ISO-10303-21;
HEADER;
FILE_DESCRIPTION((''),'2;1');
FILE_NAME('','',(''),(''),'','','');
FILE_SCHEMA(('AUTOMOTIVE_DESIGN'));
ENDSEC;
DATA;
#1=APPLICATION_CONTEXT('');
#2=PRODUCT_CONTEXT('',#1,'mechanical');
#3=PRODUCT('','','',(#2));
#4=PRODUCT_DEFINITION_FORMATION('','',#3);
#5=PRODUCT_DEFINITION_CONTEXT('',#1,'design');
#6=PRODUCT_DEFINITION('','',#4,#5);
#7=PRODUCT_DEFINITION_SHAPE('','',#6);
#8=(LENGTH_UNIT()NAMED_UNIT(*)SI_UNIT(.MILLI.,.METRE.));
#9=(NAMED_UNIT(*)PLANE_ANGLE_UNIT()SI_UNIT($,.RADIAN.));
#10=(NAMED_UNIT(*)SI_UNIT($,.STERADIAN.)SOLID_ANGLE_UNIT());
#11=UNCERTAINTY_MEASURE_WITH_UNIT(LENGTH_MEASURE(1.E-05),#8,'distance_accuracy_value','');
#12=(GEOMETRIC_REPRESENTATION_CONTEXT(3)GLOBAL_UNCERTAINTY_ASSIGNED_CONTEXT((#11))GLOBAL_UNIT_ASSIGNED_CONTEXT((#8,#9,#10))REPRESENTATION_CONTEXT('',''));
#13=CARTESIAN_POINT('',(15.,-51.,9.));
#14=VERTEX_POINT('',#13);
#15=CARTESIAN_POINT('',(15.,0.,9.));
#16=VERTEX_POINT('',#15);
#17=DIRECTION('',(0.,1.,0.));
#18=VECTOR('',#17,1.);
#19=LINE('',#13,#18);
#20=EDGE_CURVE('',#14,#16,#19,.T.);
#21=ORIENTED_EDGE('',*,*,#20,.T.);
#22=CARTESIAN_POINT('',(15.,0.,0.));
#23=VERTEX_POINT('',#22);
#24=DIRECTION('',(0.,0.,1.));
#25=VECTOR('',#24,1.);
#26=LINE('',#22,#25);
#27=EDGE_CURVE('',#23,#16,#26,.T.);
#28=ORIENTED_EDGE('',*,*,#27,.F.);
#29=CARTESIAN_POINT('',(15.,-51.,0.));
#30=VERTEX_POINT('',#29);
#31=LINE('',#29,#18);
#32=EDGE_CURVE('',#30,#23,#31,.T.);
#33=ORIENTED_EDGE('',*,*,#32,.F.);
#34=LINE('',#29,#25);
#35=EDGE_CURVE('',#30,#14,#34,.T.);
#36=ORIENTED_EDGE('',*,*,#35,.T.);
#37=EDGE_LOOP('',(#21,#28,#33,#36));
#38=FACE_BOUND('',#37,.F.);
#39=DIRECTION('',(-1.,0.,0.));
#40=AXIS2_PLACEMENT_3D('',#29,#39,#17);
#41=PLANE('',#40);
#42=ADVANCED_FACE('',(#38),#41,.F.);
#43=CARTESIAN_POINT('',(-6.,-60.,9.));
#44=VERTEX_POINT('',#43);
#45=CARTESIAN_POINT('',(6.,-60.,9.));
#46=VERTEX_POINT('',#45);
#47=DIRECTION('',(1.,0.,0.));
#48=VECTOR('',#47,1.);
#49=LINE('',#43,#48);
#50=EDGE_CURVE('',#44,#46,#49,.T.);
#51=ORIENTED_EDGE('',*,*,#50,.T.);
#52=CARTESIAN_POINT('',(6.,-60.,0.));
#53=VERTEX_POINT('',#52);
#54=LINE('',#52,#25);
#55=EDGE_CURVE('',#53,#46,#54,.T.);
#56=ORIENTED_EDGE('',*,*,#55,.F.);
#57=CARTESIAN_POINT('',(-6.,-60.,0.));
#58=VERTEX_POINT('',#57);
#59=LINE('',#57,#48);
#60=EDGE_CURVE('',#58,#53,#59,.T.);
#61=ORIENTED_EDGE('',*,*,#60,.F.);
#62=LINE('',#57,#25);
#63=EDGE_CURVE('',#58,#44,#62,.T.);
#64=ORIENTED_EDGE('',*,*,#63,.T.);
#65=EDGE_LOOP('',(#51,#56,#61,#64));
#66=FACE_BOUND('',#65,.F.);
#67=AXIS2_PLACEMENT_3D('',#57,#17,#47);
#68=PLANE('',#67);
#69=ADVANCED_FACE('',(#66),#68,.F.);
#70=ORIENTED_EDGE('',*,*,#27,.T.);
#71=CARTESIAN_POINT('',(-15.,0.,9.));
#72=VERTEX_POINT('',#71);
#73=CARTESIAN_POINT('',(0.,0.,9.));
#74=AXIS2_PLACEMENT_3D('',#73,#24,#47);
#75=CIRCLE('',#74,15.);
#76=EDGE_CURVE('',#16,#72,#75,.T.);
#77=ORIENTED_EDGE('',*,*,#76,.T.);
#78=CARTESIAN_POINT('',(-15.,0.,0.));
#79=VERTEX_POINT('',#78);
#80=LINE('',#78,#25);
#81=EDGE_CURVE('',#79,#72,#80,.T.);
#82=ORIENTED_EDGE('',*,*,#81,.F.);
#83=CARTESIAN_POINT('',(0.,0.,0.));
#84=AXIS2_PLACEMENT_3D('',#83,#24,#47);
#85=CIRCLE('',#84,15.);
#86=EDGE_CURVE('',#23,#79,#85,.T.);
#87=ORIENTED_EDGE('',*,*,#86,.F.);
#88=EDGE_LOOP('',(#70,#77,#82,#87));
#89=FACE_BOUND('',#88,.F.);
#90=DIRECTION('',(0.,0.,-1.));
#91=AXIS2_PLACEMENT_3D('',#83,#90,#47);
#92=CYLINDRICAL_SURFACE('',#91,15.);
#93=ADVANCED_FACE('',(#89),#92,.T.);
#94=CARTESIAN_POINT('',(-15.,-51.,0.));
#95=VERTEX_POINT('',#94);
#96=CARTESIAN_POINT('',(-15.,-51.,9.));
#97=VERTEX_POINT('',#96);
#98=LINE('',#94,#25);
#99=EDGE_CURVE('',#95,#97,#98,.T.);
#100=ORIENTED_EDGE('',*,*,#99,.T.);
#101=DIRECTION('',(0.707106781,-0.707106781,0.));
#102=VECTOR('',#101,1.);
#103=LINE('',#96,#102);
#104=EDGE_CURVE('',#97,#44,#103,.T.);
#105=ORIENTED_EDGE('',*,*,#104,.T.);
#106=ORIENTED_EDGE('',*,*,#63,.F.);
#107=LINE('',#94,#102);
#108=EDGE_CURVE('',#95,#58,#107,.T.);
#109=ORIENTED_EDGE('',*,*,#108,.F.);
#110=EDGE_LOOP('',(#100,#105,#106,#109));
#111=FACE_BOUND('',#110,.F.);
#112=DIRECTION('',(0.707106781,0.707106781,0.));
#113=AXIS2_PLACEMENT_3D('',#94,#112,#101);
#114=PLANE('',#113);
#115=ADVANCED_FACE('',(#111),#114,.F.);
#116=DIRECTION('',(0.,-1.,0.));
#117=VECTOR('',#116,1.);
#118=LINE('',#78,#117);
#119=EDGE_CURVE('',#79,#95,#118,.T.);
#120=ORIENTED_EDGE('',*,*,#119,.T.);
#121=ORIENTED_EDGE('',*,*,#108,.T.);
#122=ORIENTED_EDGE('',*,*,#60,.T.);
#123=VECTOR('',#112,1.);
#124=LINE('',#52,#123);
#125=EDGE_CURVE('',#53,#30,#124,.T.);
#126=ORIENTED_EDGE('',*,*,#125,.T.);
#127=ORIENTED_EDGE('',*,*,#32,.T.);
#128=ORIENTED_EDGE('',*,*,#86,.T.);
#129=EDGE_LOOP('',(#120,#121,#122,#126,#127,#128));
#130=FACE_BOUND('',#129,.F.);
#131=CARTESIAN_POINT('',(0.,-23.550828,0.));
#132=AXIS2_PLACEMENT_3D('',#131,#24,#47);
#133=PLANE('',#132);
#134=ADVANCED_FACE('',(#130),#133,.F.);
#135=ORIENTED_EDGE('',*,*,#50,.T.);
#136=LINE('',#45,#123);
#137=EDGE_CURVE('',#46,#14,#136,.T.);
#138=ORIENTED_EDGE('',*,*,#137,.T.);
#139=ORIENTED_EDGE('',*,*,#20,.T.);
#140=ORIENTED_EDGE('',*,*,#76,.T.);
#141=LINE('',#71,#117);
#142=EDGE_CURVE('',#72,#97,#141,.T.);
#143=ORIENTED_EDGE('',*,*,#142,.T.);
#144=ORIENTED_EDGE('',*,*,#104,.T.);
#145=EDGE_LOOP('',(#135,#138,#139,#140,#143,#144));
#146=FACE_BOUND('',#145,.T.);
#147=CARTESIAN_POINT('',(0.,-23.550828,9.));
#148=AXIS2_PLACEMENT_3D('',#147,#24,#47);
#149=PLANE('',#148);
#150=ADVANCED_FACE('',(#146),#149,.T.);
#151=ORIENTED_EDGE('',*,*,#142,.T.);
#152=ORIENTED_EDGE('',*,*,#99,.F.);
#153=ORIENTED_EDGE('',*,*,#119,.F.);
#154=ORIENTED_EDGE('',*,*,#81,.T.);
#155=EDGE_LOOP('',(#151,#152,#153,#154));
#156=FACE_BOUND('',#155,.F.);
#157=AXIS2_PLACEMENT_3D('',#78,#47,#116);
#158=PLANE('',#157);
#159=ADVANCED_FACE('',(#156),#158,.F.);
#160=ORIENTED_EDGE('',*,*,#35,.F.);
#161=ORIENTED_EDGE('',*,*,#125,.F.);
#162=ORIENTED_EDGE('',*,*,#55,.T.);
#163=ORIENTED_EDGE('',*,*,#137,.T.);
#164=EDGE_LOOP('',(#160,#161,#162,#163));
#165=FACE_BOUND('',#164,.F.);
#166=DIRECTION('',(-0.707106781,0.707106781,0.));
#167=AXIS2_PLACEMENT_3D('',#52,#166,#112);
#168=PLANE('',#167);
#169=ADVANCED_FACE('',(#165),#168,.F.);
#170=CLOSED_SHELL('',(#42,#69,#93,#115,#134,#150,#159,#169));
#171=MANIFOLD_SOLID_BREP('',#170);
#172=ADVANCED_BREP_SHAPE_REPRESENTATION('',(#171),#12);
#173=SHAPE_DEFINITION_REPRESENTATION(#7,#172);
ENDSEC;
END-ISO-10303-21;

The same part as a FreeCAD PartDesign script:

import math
import FreeCAD as App
import Part
import Sketcher
from FreeCAD import Vector

doc = App.newDocument("Part")
params = doc.addObject("Spreadsheet::Sheet", "Params")
for row, (alias, value) in enumerate([
    ("sketch1_radius", "15 mm"),
    ("sketch1_width", "12 mm"),
    ("sketch1_height", "51 mm"),
    ("pad1_length", "9 mm"),
], start=1):
    params.set(f"A{row}", alias)
    params.set(f"B{row}", "=" + value)
    params.setAlias(f"B{row}", alias)

body = doc.addObject("PartDesign::Body", "Body")

sketch1 = body.newObject("Sketcher::SketchObject", "Sketch")
sketch1.AttachmentSupport = (doc.getObject("XY_Plane"), [""])
sketch1.MapMode = "FlatFace"
sketch1.addGeometry(Part.LineSegment(Vector(15, -51, 0), Vector(15, 0, 0)), False)
sketch1.addGeometry(Part.ArcOfCircle(Part.Circle(Vector(0, 0, 0), Vector(0, 0, 1), 15), math.radians(0), math.radians(180)), False)
sketch1.addGeometry(Part.LineSegment(Vector(-15, 0, 0), Vector(-15, -51, 0)), False)
sketch1.addGeometry(Part.LineSegment(Vector(-15, -51, 0), Vector(-6, -60, 0)), False)
sketch1.addGeometry(Part.LineSegment(Vector(-6, -60, 0), Vector(6, -60, 0)), False)
sketch1.addGeometry(Part.LineSegment(Vector(6, -60, 0), Vector(15, -51, 0)), False)
sketch1.addConstraint(Sketcher.Constraint("Tangent", 0, 2, 1, 1))
sketch1.addConstraint(Sketcher.Constraint("Tangent", 1, 2, 2, 1))
sketch1.addConstraint(Sketcher.Constraint("Coincident", 2, 2, 3, 1))
sketch1.addConstraint(Sketcher.Constraint("Coincident", 3, 2, 4, 1))
sketch1.addConstraint(Sketcher.Constraint("Coincident", 4, 2, 5, 1))
sketch1.addConstraint(Sketcher.Constraint("Coincident", 5, 2, 0, 1))
sketch1.addConstraint(Sketcher.Constraint("Vertical", 0))
sketch1.addConstraint(Sketcher.Constraint("Vertical", 2))
sketch1.addConstraint(Sketcher.Constraint("Horizontal", 4))
sketch1.addConstraint(Sketcher.Constraint("Coincident", 1, 3, -1, 1))
sketch1.addConstraint(Sketcher.Constraint("Perpendicular", 3, 5))
sketch1.addConstraint(Sketcher.Constraint("Horizontal", 2, 2, 5, 2))
sketch1.addConstraint(Sketcher.Constraint("Equal", 3, 5))
sketch1.addConstraint(Sketcher.Constraint("Radius", 1, 15.0))
sketch1.addConstraint(Sketcher.Constraint("DistanceX", 4, 1, 4, 2, 12.0))
sketch1.addConstraint(Sketcher.Constraint("DistanceY", 0, 1, 0, 2, 51.0))
sketch1.setExpression("Constraints[13]", "Params.sketch1_radius")
sketch1.setExpression("Constraints[14]", "Params.sketch1_width")
sketch1.setExpression("Constraints[15]", "Params.sketch1_height")
pad1 = body.newObject("PartDesign::Pad", "Pad")
pad1.Profile = sketch1
pad1.setExpression("Length", "Params.pad1_length")

doc.recompute()
